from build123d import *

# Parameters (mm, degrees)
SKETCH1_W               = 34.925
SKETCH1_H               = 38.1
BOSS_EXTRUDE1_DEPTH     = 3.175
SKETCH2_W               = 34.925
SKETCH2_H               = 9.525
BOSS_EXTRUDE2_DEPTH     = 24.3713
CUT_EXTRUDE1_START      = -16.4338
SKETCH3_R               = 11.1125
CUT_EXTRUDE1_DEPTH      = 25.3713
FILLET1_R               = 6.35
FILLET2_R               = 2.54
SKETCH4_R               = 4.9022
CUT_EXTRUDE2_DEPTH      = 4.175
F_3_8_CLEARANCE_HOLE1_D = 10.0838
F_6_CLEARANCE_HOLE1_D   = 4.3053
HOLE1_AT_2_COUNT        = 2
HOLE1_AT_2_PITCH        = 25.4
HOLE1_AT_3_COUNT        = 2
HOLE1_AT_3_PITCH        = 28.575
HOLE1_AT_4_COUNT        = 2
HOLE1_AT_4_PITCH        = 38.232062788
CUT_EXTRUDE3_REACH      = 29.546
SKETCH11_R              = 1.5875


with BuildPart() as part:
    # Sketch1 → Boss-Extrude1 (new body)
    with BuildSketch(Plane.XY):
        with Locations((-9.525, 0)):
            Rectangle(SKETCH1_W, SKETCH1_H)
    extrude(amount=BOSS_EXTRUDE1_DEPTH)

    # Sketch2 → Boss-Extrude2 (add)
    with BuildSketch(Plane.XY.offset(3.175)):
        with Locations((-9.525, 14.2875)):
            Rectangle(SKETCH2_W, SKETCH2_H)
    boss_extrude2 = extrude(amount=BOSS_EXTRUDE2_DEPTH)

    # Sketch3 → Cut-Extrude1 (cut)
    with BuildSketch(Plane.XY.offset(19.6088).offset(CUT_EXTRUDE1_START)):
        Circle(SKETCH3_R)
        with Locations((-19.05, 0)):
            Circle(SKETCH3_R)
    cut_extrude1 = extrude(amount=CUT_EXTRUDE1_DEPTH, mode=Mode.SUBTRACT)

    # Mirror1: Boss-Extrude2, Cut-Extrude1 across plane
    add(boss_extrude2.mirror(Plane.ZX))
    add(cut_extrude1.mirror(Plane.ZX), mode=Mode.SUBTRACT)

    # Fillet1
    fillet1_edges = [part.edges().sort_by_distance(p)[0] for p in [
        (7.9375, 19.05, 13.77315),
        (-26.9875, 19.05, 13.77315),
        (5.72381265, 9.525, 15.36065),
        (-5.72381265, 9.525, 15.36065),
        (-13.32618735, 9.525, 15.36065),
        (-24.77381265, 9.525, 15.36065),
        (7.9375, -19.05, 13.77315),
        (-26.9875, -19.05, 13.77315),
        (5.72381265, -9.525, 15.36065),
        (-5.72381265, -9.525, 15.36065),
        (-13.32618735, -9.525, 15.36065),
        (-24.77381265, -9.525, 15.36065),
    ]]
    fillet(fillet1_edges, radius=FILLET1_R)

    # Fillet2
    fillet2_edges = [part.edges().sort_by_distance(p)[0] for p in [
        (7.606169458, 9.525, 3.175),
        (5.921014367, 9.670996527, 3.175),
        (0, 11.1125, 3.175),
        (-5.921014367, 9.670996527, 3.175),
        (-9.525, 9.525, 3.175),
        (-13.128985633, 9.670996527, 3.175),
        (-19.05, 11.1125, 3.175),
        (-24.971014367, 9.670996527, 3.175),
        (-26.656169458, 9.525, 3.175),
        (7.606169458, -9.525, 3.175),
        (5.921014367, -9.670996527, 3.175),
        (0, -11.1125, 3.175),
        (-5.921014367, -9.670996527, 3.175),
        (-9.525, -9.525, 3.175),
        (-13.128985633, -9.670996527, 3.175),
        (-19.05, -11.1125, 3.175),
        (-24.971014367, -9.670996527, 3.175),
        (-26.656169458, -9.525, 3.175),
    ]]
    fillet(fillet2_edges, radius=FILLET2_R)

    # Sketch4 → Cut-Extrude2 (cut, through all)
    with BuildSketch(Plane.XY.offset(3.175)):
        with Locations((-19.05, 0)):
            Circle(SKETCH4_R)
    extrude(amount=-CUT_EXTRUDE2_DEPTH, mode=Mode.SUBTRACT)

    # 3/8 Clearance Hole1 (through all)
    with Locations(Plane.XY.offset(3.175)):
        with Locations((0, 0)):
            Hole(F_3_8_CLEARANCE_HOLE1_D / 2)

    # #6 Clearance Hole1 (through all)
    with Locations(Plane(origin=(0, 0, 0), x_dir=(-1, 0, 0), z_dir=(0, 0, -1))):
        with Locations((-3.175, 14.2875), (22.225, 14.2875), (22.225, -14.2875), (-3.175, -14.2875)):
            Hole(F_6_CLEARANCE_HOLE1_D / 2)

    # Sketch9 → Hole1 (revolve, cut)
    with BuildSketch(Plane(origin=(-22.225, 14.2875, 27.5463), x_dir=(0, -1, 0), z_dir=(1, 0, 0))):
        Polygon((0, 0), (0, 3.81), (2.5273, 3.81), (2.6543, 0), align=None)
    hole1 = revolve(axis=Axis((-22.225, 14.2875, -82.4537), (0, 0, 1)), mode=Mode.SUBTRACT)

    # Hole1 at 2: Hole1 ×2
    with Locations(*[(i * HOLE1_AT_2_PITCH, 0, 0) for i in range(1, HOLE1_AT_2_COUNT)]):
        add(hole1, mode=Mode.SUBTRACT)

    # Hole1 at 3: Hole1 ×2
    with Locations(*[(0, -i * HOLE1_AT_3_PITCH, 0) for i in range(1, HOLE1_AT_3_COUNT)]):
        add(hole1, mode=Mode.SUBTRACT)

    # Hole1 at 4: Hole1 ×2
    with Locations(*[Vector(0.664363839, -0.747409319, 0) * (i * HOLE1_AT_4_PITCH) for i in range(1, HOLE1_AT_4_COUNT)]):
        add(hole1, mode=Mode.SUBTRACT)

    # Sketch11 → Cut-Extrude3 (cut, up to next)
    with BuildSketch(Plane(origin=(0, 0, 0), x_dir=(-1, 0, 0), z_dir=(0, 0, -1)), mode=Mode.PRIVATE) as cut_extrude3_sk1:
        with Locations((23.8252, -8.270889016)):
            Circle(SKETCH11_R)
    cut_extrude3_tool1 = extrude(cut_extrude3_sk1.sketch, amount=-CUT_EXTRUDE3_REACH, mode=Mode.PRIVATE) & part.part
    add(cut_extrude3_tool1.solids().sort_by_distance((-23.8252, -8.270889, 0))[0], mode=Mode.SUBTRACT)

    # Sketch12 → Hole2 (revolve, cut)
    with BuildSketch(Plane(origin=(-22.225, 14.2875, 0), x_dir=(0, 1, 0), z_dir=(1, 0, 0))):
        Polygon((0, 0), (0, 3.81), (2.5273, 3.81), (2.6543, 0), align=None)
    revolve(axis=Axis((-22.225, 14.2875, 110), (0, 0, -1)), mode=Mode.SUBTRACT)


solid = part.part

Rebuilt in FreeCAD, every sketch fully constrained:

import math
import FreeCAD as App
import Part
import Sketcher
Q = App.Units.Quantity


def edges_at(feature, points):
    """Names of the edges that pass closest to the given points."""
    edges = feature.Shape.Edges
    near = lambda p: min(range(len(edges)), key=lambda i: edges[i].distToShape(Part.Vertex(*p))[0])
    return sorted({f"Edge{near(p) + 1}" for p in points})


def add_polygon(sketch, points):
    """Adds a closed chain of lines whose ends are joined by coincident constraints."""
    first, n = sketch.GeometryCount, len(points)
    for a, b in zip(points, points[1:] + points[:1]):
        sketch.addGeometry(Part.LineSegment(App.Vector(*a, 0), App.Vector(*b, 0)), False)
    for i in range(n):
        sketch.addConstraint(Sketcher.Constraint("Coincident", first + i, 2, first + (i + 1) % n, 1))

doc = App.newDocument("Part")
body = doc.addObject("PartDesign::Body", "Body")

# Sketch on XY plane
sketch1 = doc.addObject("Sketcher::SketchObject", "Sketch")
body.addObject(sketch1)
sketch1.AttachmentSupport = (doc.XY_Plane, [""])
sketch1.MapMode = "FlatFace"
add_polygon(sketch1, [(-26.9875, 19.05), (-26.9875, -19.05), (7.9375, -19.05), (7.9375, 19.05)])  # lines 0-3
sketch1.addConstraint([
    Sketcher.Constraint("Vertical", 0),
    Sketcher.Constraint("Horizontal", 1),
    Sketcher.Constraint("Vertical", 2),
    Sketcher.Constraint("Horizontal", 3),
    Sketcher.Constraint("DistanceY", 0, 2, 0, 1, Q("1.5 in")),
    Sketcher.Constraint("DistanceX", 1, 1, 1, 2, Q("1.375 in")),
    Sketcher.Constraint("DistanceY", 0, 2, -1, 1, Q("0.75 in")),
    Sketcher.Constraint("DistanceX", 0, 2, -1, 1, Q("1.0625 in")),
])
pad1 = doc.addObject("PartDesign::Pad", "Pad")
body.addObject(pad1)
pad1.Profile = sketch1
pad1.Length = Q("0.125 in")

# Sketch on XY plane
sketch2 = doc.addObject("Sketcher::SketchObject", "Sketch001")
body.addObject(sketch2)
sketch2.AttachmentSupport = (doc.XY_Plane, [""])
sketch2.MapMode = "FlatFace"
sketch2.AttachmentOffset = App.Placement(App.Vector(0, 0, 0.125 * 25.4), App.Rotation())
add_polygon(sketch2, [(-26.9875, 19.05), (-26.9875, 9.525), (7.9375, 9.525), (7.9375, 19.05)])  # lines 0-3
sketch2.addConstraint([
    Sketcher.Constraint("Vertical", 0),
    Sketcher.Constraint("Horizontal", 1),
    Sketcher.Constraint("Vertical", 2),
    Sketcher.Constraint("Horizontal", 3),
    Sketcher.Constraint("DistanceX", 1, 1, 1, 2, Q("1.375 in")),
    Sketcher.Constraint("DistanceY", 0, 2, 0, 1, Q("0.375 in")),
    Sketcher.Constraint("DistanceY", -1, 1, 2, 2, Q("0.75 in")),
    Sketcher.Constraint("DistanceX", 0, 2, -1, 1, Q("1.0625 in")),
])
pad2 = doc.addObject("PartDesign::Pad", "Pad001")
body.addObject(pad2)
pad2.Profile = sketch2
pad2.Length = Q("0.9595 in")

# Sketch on XY plane
sketch3 = doc.addObject("Sketcher::SketchObject", "Sketch002")
body.addObject(sketch3)
sketch3.AttachmentSupport = (doc.XY_Plane, [""])
sketch3.MapMode = "FlatFace"
sketch3.AttachmentOffset = App.Placement(App.Vector(0, 0, 0.125 * 25.4), App.Rotation())
sketch3.addGeometry([
    Part.ArcOfCircle(Part.Circle(App.Vector(-19.05, 0, 0), App.Vector(0, 0, 1), 11.1125), math.radians(31.002719), math.radians(328.997281)),
    Part.ArcOfCircle(Part.Circle(App.Vector(0, 0, 0), App.Vector(0, 0, 1), 11.1125), math.radians(-148.997281), math.radians(148.997281)),
], False)
sketch3.addConstraint([
    Sketcher.Constraint("Coincident", 0, 1, 1, 2),
    Sketcher.Constraint("Coincident", 1, 1, 0, 2),
    Sketcher.Constraint("Coincident", 1, 3, -1, 1),
    Sketcher.Constraint("Equal", 0, 1),
    Sketcher.Constraint("PointOnObject", 0, 3, -1),
    Sketcher.Constraint("Radius", 0, Q("0.4375 in")),
    Sketcher.Constraint("DistanceX", 0, 3, -1, 1, Q("0.75 in")),
])
pocket1 = doc.addObject("PartDesign::Pocket", "Pocket")
body.addObject(pocket1)
pocket1.Profile = sketch3
pocket1.Length = 25.3713
pocket1.Reversed = True
doc.recompute()

mirrored = doc.addObject("PartDesign::Mirrored", "Mirrored")
body.addObject(mirrored)
mirrored.Originals = [pad2, pocket1]
mirrored.MirrorPlane = (doc.XZ_Plane, [""])
body.Tip = mirrored
doc.recompute()

fillet = doc.addObject("PartDesign::Fillet", "Fillet")
body.addObject(fillet)
fillet.Base = (mirrored, edges_at(mirrored, [
    (7.938, 19.05, 13.773),
    (-26.988, 19.05, 13.773),
    (5.724, 9.525, 15.361),
    (-5.724, 9.525, 15.361),
    (-13.326, 9.525, 15.361),
    (-24.774, 9.525, 15.361),
    (7.938, -19.05, 13.773),
    (-26.988, -19.05, 13.773),
    (5.724, -9.525, 15.361),
    (-5.724, -9.525, 15.361),
    (-13.326, -9.525, 15.361),
    (-24.774, -9.525, 15.361),
]))
fillet.Radius = Q("0.25 in")
doc.recompute()

fillet2 = doc.addObject("PartDesign::Fillet", "Fillet001")
body.addObject(fillet2)
fillet2.Base = (fillet, edges_at(fillet, [
    (7.606, 9.525, 3.175),
    (5.921, 9.671, 3.175),
    (0, 11.113, 3.175),
    (-5.921, 9.671, 3.175),
    (-9.525, 9.525, 3.175),
    (-13.129, 9.671, 3.175),
    (-19.05, 11.113, 3.175),
    (-24.971, 9.671, 3.175),
    (-26.656, 9.525, 3.175),
    (7.606, -9.525, 3.175),
    (5.921, -9.671, 3.175),
    (0, -11.113, 3.175),
    (-5.921, -9.671, 3.175),
    (-9.525, -9.525, 3.175),
    (-13.129, -9.671, 3.175),
    (-19.05, -11.113, 3.175),
    (-24.971, -9.671, 3.175),
    (-26.656, -9.525, 3.175),
]))
fillet2.Radius = Q("0.1 in")

# Sketch on XY plane
sketch4 = doc.addObject("Sketcher::SketchObject", "Sketch003")
body.addObject(sketch4)
sketch4.AttachmentSupport = (doc.XY_Plane, [""])
sketch4.MapMode = "FlatFace"
sketch4.AttachmentOffset = App.Placement(App.Vector(0, 0, 0.125 * 25.4), App.Rotation())
sketch4.addGeometry(Part.Circle(App.Vector(-19.05, 0, 0), App.Vector(0, 0, 1), 4.9022), False)
sketch4.addConstraint([
    Sketcher.Constraint("PointOnObject", 0, 3, -1),
    Sketcher.Constraint("Diameter", 0, Q("0.386 in")),
    Sketcher.Constraint("DistanceX", 0, 3, -1, 1, Q("0.75 in")),
])
pocket2 = doc.addObject("PartDesign::Pocket", "Pocket001")
body.addObject(pocket2)
pocket2.Profile = sketch4
pocket2.Type = "ThroughAll"

# Sketch on XY plane
sketch5 = doc.addObject("Sketcher::SketchObject", "Sketch004")
body.addObject(sketch5)
sketch5.AttachmentSupport = (doc.XY_Plane, [""])
sketch5.MapMode = "FlatFace"
sketch5.AttachmentOffset = App.Placement(App.Vector(0, 0, 0.125 * 25.4), App.Rotation())
sketch5.addGeometry(Part.Circle(App.Vector(0, 0, 0), App.Vector(0, 0, 1), 5.0419), False)
sketch5.addConstraint([
    Sketcher.Constraint("Coincident", 0, 3, -1, 1),
    Sketcher.Constraint("Diameter", 0, Q("0.397 in")),
])
doc.recompute()
hole = doc.addObject("PartDesign::Hole", "Hole")
body.addObject(hole)
hole.Profile = sketch5
hole.ThreadType = "None"
hole.Diameter = Q("0.397 in")
hole.DepthType = "ThroughAll"

# Sketch on XY plane
sketch6 = doc.addObject("Sketcher::SketchObject", "Sketch005")
body.addObject(sketch6)
sketch6.AttachmentSupport = (doc.XY_Plane, [""])
sketch6.MapMode = "FlatFace"
sketch6.addGeometry([
    Part.Circle(App.Vector(3.175, 14.2875, 0), App.Vector(0, 0, 1), 2.15265),
    Part.Circle(App.Vector(-22.225, 14.2875, 0), App.Vector(0, 0, 1), 2.15265),
    Part.Circle(App.Vector(-22.225, -14.2875, 0), App.Vector(0, 0, 1), 2.15265),
    Part.Circle(App.Vector(3.175, -14.2875, 0), App.Vector(0, 0, 1), 2.15265),
], False)
sketch6.addConstraint([
    Sketcher.Constraint("Equal", 0, 1),
    Sketcher.Constraint("Equal", 1, 2),
    Sketcher.Constraint("Equal", 2, 3),
    Sketcher.Constraint("Symmetric", 1, 3, 2, 3, -1),
    Sketcher.Constraint("Symmetric", 0, 3, 3, 3, -1),
    Sketcher.Constraint("Horizontal", 0, 3, 1, 3),
    Sketcher.Constraint("DistanceX", 1, 3, 0, 3, Q("1 in")),
    Sketcher.Constraint("Diameter", 0, Q("0.1695 in")),
    Sketcher.Constraint("DistanceX", -1, 1, 0, 3, Q("0.125 in")),
    Sketcher.Constraint("DistanceY", -1, 1, 0, 3, Q("0.5625 in")),
])
doc.recompute()
hole2 = doc.addObject("PartDesign::Hole", "Hole001")
body.addObject(hole2)
hole2.Profile = sketch6
hole2.ThreadType = "None"
hole2.Diameter = Q("0.1695 in")
hole2.DepthType = "ThroughAll"
hole2.Reversed = True

# Sketch on YZ plane
sketch7 = doc.addObject("Sketcher::SketchObject", "Sketch006")
body.addObject(sketch7)
sketch7.AttachmentSupport = (doc.YZ_Plane, [""])
sketch7.MapMode = "FlatFace"
sketch7.AttachmentOffset = App.Placement(App.Vector(0, 0, -0.875 * 25.4), App.Rotation())
add_polygon(sketch7, [(14.2875, 23.7363), (14.2875, 27.5463), (11.6332, 27.5463), (11.7602, 23.7363)])  # lines 0-3
sketch7.addGeometry(Part.LineSegment(App.Vector(14.2875, 23.7363, 0), App.Vector(14.2875, 27.5463, 0)), True)  # axis
sketch7.addConstraint([
    Sketcher.Constraint("Vertical", 0),
    Sketcher.Constraint("Horizontal", 1),
    Sketcher.Constraint("Horizontal", 3),
    Sketcher.Constraint("Vertical", 4),
    Sketcher.Constraint("Coincident", 4, 1, 3, 2),
    Sketcher.Constraint("Horizontal", 1, 2, 4, 2),
    Sketcher.Constraint("DistanceY", 0, 1, 0, 2, Q("0.15 in")),
    Sketcher.Constraint("DistanceX", 1, 2, 1, 1, Q("0.1045 in")),
    Sketcher.Constraint("DistanceX", 3, 1, 3, 2, Q("0.0995 in")),
    Sketcher.Constraint("DistanceX", -1, 1, 0, 2, Q("0.5625 in")),
    Sketcher.Constraint("DistanceY", -1, 1, 0, 2, Q("1.0845 in")),
])
groove = doc.addObject("PartDesign::Groove", "Groove")
body.addObject(groove)
groove.Profile = sketch7
groove.ReferenceAxis = (sketch7, ["Axis0"])
groove.Angle = 360
doc.recompute()

linearpattern = doc.addObject("PartDesign::LinearPattern", "LinearPattern")
body.addObject(linearpattern)
linearpattern.Originals = [groove]
linearpattern.Direction = (doc.X_Axis, [""])
linearpattern.Mode = "offset"
linearpattern.Offset = Q("1 in")
linearpattern.Occurrences = 2
body.Tip = linearpattern
doc.recompute()

linearpattern2 = doc.addObject("PartDesign::LinearPattern", "LinearPattern001")
body.addObject(linearpattern2)
linearpattern2.Originals = [groove]
linearpattern2.Direction = (doc.Y_Axis, [""])
linearpattern2.Mode = "offset"
linearpattern2.Offset = Q("1.125 in")
linearpattern2.Occurrences = 2
linearpattern2.Reversed = True
body.Tip = linearpattern2
doc.recompute()

datumline = doc.addObject("PartDesign::Line", "DatumLine")
body.addObject(datumline)
datumline.Placement = App.Placement(App.Vector(0, 0, 0), App.Rotation(App.Vector(0, 0, 1), App.Vector(0.664363839, -0.747409319, 0)))
linearpattern3 = doc.addObject("PartDesign::LinearPattern", "LinearPattern002")
body.addObject(linearpattern3)
linearpattern3.Originals = [groove]
linearpattern3.Direction = (datumline, [""])
linearpattern3.Mode = "offset"
linearpattern3.Offset = 38.232063
linearpattern3.Occurrences = 2
body.Tip = linearpattern3

# Sketch on XY plane
sketch8 = doc.addObject("Sketcher::SketchObject", "Sketch007")
body.addObject(sketch8)
sketch8.AttachmentSupport = (doc.XY_Plane, [""])
sketch8.MapMode = "FlatFace"
sketch8.addGeometry(Part.Circle(App.Vector(-23.8252, -8.270889, 0), App.Vector(0, 0, 1), 1.5875), False)
sketch8.addConstraint([
    Sketcher.Constraint("Diameter", 0, Q("0.125 in")),
    Sketcher.Constraint("DistanceX", 0, 3, -1, 1, Q("0.938 in")),
    Sketcher.Constraint("DistanceY", 0, 3, -1, 1, Q("8.270889 mm")),
])
pocket3 = doc.addObject("PartDesign::Pocket", "Pocket002")
body.addObject(pocket3)
pocket3.Profile = sketch8
pocket3.Type = "UpToFirst"
pocket3.Reversed = True

# Sketch on YZ plane
sketch9 = doc.addObject("Sketcher::SketchObject", "Sketch008")
body.addObject(sketch9)
sketch9.AttachmentSupport = (doc.YZ_Plane, [""])
sketch9.MapMode = "FlatFace"
sketch9.AttachmentOffset = App.Placement(App.Vector(0, 0, -0.875 * 25.4), App.Rotation())
add_polygon(sketch9, [(14.2875, 3.81), (14.2875, 0), (16.9418, 0), (16.8148, 3.81)])  # lines 0-3
sketch9.addGeometry(Part.LineSegment(App.Vector(14.2875, 3.81, 0), App.Vector(14.2875, 0, 0)), True)  # axis
sketch9.addConstraint([
    Sketcher.Constraint("Vertical", 0),
    Sketcher.Constraint("Horizontal", 1),
    Sketcher.Constraint("Horizontal", 3),
    Sketcher.Constraint("Vertical", 4),
    Sketcher.Constraint("Coincident", 4, 1, 3, 2),
    Sketcher.Constraint("PointOnObject", 0, 2, -1),
    Sketcher.Constraint("PointOnObject", 4, 2, -1),
    Sketcher.Constraint("DistanceY", 0, 2, 0, 1, Q("0.15 in")),
    Sketcher.Constraint("DistanceX", 1, 1, 1, 2, Q("0.1045 in")),
    Sketcher.Constraint("DistanceX", 3, 2, 3, 1, Q("0.0995 in")),
    Sketcher.Constraint("DistanceX", -1, 1, 0, 2, Q("0.5625 in")),
])
groove2 = doc.addObject("PartDesign::Groove", "Groove001")
body.addObject(groove2)
groove2.Profile = sketch9
groove2.ReferenceAxis = (sketch9, ["Axis0"])
groove2.Angle = 360

doc.recompute()
